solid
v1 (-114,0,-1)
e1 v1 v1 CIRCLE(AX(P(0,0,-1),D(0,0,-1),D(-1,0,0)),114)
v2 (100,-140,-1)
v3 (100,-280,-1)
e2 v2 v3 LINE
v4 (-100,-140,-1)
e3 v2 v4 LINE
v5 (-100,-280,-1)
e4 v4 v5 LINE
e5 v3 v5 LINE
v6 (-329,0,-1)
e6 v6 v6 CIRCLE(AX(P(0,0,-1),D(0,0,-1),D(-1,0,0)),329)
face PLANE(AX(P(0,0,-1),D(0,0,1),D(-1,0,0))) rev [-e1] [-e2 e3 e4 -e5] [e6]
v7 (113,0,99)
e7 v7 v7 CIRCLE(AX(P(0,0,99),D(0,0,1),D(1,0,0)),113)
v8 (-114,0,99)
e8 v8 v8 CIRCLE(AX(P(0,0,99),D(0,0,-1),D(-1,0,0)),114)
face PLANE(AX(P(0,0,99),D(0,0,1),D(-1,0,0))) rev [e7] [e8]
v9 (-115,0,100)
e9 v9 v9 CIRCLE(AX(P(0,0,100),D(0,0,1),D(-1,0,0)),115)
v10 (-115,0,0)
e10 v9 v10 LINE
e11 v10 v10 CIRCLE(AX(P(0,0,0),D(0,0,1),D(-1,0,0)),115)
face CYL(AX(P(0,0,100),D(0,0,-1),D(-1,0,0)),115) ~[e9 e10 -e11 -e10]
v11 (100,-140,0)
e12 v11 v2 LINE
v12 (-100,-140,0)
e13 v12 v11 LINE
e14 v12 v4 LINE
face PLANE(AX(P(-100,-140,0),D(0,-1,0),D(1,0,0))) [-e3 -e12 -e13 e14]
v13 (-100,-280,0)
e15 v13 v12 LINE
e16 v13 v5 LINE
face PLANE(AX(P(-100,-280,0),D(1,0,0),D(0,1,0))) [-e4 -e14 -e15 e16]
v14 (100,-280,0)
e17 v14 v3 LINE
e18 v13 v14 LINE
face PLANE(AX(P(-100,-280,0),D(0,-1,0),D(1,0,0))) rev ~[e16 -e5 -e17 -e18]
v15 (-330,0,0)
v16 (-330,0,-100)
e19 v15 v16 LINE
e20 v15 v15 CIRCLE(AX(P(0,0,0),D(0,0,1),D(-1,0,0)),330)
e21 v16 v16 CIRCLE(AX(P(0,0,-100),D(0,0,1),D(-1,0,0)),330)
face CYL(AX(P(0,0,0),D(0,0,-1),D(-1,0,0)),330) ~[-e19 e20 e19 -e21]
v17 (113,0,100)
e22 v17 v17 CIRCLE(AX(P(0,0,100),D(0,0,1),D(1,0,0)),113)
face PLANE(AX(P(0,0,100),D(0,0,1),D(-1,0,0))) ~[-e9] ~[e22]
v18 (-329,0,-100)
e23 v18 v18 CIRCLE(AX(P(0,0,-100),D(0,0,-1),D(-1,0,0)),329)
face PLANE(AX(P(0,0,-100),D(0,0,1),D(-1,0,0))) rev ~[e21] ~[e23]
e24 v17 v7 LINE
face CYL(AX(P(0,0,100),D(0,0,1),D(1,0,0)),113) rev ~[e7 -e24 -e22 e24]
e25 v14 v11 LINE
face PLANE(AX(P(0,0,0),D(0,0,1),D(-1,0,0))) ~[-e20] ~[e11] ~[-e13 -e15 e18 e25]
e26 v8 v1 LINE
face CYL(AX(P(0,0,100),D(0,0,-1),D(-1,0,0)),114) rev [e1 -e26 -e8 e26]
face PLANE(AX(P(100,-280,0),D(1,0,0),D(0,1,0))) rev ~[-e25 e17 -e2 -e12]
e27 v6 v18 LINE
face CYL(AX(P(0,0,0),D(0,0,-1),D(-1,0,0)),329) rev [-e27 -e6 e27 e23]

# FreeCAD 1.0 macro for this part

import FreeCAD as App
import Part
import Sketcher

V = App.Vector


def faces_at(feature, points):
    """Names of the faces that lie closest to the given points."""
    faces = feature.Shape.Faces
    near = lambda p: min(range(len(faces)), key=lambda i: faces[i].distToShape(Part.Vertex(*p))[0])
    return sorted({f"Face{near(p) + 1}" for p in points})

doc = App.newDocument("Part")
body = doc.addObject("PartDesign::Body", "Body")

# Sketch on XZ plane
sketch1 = body.newObject("Sketcher::SketchObject", "Sketch")
sketch1.AttachmentSupport = (doc.getObject("XZ_Plane"), [""])
sketch1.MapMode = "FlatFace"
sketch1.addGeometry([
    Part.LineSegment(V(0, 100, 0), V(-115, 100, 0)),  # 0
    Part.LineSegment(V(-115, 100, 0), V(-115, 0, 0)),  # 1
    Part.LineSegment(V(-115, 0, 0), V(-330, 0, 0)),  # 2
    Part.LineSegment(V(-330, 0, 0), V(-330, -100, 0)),  # 3
    Part.LineSegment(V(-330, -100, 0), V(0, -100, 0)),  # 4
    Part.LineSegment(V(0, -100, 0), V(0, 100, 0)),  # 5
], False)
sketch1.addConstraint([
    Sketcher.Constraint("Coincident", 0, 2, 1, 1),
    Sketcher.Constraint("Coincident", 1, 2, 2, 1),
    Sketcher.Constraint("Coincident", 2, 2, 3, 1),
    Sketcher.Constraint("Coincident", 3, 2, 4, 1),
    Sketcher.Constraint("Coincident", 4, 2, 5, 1),
    Sketcher.Constraint("Coincident", 5, 2, 0, 1),
    Sketcher.Constraint("Horizontal", 0),
    Sketcher.Constraint("Vertical", 1),
    Sketcher.Constraint("Horizontal", 2),
    Sketcher.Constraint("Vertical", 3),
    Sketcher.Constraint("Horizontal", 4),
    Sketcher.Constraint("Vertical", 5),
    Sketcher.Constraint("Symmetric", 4, 2, 5, 2, -1, 1),
    Sketcher.Constraint("PointOnObject", 1, 2, -1),
    Sketcher.Constraint("DistanceX", 0, 2, 0, 1, 115.0),
    Sketcher.Constraint("DistanceX", 2, 2, 2, 1, 215.0),
    Sketcher.Constraint("DistanceY", 1, 2, 1, 1, 100.0),
])
revolution = body.newObject("PartDesign::Revolution", "Revolution")
revolution.Profile = sketch1
revolution.ReferenceAxis = (sketch1, ["V_Axis"])
revolution.Angle = 360
doc.recompute()

thickness = body.newObject("PartDesign::Thickness", "Thickness")
thickness.Base = (revolution, faces_at(revolution, [(0, 0, -100)]))
thickness.Value = 1
thickness.Reversed = True
thickness.Join = "Intersection"

# Sketch on XY plane
sketch2 = body.newObject("Sketcher::SketchObject", "Sketch001")
sketch2.AttachmentSupport = (doc.getObject("XY_Plane"), [""])
sketch2.MapMode = "FlatFace"
sketch2.AttachmentOffset = App.Placement(V(0, 0, 100), App.Rotation())
sketch2.addGeometry(Part.Circle(V(0, 0, 0), V(0, 0, 1), 113), False)
sketch2.addConstraint([
    Sketcher.Constraint("Coincident", 0, 3, -1, 1),
    Sketcher.Constraint("Diameter", 0, 226.0),
])
pocket1 = body.newObject("PartDesign::Pocket", "Pocket")
pocket1.Profile = sketch2
pocket1.Type = "ThroughAll"

# Sketch on XY plane
sketch3 = body.newObject("Sketcher::SketchObject", "Sketch002")
sketch3.AttachmentSupport = (doc.getObject("XY_Plane"), [""])
sketch3.MapMode = "FlatFace"
sketch3.addGeometry([
    Part.LineSegment(V(-100, -140, 0), V(-100, -280, 0)),
    Part.LineSegment(V(-100, -280, 0), V(100, -280, 0)),
    Part.LineSegment(V(100, -280, 0), V(100, -140, 0)),
    Part.LineSegment(V(100, -140, 0), V(-100, -140, 0)),
], False)
sketch3.addConstraint([
    Sketcher.Constraint("Coincident", 0, 2, 1, 1),
    Sketcher.Constraint("Coincident", 1, 2, 2, 1),
    Sketcher.Constraint("Coincident", 2, 2, 3, 1),
    Sketcher.Constraint("Coincident", 3, 2, 0, 1),
    Sketcher.Constraint("Vertical", 0),
    Sketcher.Constraint("Horizontal", 1),
    Sketcher.Constraint("Vertical", 2),
    Sketcher.Constraint("Horizontal", 3),
    Sketcher.Constraint("DistanceX", 1, 1, 1, 2, 200.0),
    Sketcher.Constraint("DistanceY", 0, 2, 0, 1, 140.0),
    Sketcher.Constraint("DistanceX", 0, 2, -1, 1, 100.0),
    Sketcher.Constraint("DistanceY", 0, 2, -1, 1, 280.0),
])
pocket2 = body.newObject("PartDesign::Pocket", "Pocket001")
pocket2.Profile = sketch3
pocket2.Type = "ThroughAll"

doc.recompute()
